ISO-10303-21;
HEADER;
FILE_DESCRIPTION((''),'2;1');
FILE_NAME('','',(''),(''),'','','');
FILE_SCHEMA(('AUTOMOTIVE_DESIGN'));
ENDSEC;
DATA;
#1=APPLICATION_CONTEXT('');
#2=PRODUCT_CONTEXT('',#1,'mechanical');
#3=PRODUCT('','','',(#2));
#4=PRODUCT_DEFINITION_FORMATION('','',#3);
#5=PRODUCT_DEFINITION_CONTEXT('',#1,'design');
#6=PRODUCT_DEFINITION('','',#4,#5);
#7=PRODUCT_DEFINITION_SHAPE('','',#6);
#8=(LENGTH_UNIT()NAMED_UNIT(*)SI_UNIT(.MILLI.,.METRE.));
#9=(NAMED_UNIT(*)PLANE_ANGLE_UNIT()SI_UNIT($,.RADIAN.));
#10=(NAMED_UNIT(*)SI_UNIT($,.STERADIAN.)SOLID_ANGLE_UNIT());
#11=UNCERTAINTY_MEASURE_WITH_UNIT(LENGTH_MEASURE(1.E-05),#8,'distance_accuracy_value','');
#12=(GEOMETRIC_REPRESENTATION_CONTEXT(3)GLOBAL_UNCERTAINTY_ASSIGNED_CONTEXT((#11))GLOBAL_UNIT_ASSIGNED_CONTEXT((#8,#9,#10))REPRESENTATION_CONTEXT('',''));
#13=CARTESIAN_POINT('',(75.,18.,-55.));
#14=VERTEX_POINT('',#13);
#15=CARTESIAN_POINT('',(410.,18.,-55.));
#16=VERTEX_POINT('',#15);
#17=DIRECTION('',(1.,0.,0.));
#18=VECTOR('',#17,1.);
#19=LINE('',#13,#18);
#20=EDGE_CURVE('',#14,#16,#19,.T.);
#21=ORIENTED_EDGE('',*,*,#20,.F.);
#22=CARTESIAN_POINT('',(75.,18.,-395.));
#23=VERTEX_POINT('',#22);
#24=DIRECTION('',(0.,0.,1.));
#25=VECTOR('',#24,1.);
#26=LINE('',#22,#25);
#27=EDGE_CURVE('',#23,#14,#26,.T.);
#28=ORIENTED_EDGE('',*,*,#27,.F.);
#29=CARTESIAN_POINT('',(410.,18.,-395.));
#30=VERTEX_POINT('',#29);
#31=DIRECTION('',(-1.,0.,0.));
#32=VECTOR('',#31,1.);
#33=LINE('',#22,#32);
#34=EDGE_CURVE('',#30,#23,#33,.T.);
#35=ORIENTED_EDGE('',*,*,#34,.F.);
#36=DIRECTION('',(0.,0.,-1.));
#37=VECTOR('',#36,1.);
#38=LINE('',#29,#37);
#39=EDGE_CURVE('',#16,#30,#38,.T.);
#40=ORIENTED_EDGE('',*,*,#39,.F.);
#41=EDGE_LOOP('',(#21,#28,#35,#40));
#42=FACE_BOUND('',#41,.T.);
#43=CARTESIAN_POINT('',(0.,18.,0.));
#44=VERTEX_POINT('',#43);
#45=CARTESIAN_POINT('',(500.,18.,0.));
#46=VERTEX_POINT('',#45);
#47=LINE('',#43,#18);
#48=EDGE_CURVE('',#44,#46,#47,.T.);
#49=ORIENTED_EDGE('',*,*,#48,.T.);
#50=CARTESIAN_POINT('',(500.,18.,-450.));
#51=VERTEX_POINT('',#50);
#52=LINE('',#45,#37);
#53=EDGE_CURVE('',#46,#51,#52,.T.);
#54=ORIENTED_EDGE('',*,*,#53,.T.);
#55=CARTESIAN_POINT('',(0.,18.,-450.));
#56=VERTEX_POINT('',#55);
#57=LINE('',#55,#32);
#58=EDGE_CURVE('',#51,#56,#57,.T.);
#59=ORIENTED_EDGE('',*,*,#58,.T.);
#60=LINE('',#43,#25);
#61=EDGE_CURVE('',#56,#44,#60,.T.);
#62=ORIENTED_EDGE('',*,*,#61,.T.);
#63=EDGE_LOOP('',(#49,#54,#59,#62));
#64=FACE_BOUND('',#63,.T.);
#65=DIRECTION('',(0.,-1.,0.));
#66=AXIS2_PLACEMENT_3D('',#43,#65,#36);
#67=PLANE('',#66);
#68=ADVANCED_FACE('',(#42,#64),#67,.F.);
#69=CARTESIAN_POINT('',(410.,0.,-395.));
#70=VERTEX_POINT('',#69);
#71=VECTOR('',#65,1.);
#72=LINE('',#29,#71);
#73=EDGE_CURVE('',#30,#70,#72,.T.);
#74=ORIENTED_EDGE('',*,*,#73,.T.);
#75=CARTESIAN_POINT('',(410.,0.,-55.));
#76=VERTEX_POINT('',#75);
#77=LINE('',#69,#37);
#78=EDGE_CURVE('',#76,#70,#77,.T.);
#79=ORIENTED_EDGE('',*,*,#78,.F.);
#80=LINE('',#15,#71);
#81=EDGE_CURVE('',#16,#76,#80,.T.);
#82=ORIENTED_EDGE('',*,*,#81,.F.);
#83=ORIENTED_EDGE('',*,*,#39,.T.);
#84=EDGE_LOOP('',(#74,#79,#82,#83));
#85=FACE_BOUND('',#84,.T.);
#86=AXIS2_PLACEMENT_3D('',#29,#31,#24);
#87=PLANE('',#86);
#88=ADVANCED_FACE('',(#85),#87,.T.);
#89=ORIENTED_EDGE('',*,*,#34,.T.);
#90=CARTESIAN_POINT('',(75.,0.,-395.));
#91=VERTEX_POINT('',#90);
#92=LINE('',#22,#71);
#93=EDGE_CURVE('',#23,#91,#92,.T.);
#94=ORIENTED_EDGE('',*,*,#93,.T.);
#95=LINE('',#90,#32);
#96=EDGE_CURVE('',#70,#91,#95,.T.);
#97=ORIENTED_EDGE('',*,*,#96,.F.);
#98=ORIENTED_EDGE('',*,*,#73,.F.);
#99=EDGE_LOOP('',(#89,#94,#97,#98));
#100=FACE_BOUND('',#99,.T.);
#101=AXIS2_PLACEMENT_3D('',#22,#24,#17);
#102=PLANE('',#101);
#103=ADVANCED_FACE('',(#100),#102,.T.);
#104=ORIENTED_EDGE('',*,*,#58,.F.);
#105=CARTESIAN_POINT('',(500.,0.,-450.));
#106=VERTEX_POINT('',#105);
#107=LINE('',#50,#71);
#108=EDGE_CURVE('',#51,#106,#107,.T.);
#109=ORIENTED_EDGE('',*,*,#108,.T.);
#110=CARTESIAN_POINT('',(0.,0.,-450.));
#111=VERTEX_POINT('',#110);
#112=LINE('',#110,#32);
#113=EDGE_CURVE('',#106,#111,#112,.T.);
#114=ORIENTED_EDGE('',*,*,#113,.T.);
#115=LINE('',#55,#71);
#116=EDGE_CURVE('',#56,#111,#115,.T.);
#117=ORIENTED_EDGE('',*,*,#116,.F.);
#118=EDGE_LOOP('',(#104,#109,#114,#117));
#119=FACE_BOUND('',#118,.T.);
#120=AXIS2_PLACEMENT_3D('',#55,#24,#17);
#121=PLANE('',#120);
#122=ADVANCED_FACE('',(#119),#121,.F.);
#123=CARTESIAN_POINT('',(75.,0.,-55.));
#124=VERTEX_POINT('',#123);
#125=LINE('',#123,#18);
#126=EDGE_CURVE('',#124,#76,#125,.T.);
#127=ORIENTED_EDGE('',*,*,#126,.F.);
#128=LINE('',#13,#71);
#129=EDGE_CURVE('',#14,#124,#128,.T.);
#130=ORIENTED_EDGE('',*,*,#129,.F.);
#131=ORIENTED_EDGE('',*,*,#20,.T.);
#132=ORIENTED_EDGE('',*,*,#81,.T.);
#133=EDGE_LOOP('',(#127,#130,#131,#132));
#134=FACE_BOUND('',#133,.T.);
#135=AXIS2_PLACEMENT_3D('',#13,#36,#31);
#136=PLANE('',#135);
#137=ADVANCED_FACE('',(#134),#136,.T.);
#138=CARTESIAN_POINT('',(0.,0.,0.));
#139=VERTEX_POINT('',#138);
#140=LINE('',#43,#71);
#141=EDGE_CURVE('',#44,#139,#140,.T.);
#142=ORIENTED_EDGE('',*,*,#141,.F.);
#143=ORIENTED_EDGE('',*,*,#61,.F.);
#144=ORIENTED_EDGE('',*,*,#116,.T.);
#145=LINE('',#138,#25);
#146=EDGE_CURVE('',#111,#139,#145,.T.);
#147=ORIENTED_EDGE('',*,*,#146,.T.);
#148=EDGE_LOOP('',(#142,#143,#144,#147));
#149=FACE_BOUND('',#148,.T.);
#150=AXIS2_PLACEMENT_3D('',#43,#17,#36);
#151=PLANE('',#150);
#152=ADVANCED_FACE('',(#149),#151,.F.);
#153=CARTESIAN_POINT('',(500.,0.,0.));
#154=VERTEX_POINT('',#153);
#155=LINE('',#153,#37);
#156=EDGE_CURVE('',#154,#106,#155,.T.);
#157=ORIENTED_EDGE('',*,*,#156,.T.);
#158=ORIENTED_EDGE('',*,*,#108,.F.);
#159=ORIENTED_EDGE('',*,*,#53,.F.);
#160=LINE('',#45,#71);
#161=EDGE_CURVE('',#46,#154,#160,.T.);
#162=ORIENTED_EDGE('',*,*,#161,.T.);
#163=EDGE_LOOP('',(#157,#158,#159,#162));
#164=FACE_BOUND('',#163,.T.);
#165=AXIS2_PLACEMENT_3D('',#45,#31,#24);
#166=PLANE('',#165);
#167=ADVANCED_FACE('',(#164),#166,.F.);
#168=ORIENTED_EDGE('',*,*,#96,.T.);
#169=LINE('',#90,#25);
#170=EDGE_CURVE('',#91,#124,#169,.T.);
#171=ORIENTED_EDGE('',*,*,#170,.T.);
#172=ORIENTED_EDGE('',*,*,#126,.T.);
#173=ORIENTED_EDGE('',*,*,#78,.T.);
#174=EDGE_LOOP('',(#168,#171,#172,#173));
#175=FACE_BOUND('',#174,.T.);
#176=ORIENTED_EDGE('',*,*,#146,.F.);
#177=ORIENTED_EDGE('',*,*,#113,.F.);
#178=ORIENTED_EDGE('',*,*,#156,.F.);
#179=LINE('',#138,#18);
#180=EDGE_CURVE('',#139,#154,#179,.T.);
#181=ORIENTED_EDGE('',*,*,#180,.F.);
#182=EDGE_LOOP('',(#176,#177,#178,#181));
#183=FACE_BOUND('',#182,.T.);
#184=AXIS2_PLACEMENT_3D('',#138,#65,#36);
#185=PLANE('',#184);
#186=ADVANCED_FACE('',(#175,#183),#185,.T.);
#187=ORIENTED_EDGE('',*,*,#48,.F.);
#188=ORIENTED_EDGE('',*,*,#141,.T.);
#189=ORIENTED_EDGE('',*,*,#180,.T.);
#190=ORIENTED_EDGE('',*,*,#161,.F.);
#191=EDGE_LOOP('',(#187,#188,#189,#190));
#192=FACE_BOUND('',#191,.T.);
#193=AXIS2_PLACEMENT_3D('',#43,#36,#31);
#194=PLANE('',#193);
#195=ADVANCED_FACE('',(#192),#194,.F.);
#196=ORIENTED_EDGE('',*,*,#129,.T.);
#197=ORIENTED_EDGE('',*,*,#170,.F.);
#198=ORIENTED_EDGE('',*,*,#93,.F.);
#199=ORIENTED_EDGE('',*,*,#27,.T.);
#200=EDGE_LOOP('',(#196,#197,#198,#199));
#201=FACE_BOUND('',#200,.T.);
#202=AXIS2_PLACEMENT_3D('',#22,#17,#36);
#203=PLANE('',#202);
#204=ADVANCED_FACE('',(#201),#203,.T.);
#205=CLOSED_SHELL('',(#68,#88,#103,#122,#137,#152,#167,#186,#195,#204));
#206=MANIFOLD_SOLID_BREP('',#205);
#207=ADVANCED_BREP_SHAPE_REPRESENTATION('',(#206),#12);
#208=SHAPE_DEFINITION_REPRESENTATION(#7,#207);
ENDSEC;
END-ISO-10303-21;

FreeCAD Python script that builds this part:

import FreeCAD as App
import Part
import Sketcher
from FreeCAD import Vector
Q = App.Units.Quantity


def add_polygon(sketch, points):
    """Adds a closed chain of lines whose ends are joined by coincident constraints."""
    first, n = sketch.GeometryCount, len(points)
    for a, b in zip(points, points[1:] + points[:1]):
        sketch.addGeometry(Part.LineSegment(App.Vector(*a, 0), App.Vector(*b, 0)), False)
    for i in range(n):
        sketch.addConstraint(Sketcher.Constraint("Coincident", first + i, 2, first + (i + 1) % n, 1))

doc = App.newDocument("Part")
body = doc.addObject("PartDesign::Body", "Body")

sketch1 = body.newObject("Sketcher::SketchObject", "Sketch")
sketch1.AttachmentSupport = (doc.getObject("XZ_Plane"), [""])
sketch1.MapMode = "FlatFace"
add_polygon(sketch1, [(0, -450), (0, 0), (500, 0), (500, -450)])
add_polygon(sketch1, [(410, -55), (75, -55), (75, -395), (410, -395)])
sketch1.addConstraint([
    Sketcher.Constraint("Vertical", 0),
    Sketcher.Constraint("Horizontal", 1),
    Sketcher.Constraint("Vertical", 2),
    Sketcher.Constraint("Horizontal", 3),
    Sketcher.Constraint("Horizontal", 4),
    Sketcher.Constraint("Vertical", 5),
    Sketcher.Constraint("Horizontal", 6),
    Sketcher.Constraint("Vertical", 7),
    Sketcher.Constraint("Coincident", 0, 2, -1, 1),
    Sketcher.Constraint("DistanceX", 1, 1, 1, 2, Q("500 mm")),
    Sketcher.Constraint("DistanceX", 4, 2, 4, 1, Q("335 mm")),
    Sketcher.Constraint("DistanceY", 0, 1, 0, 2, Q("450 mm")),
    Sketcher.Constraint("DistanceY", 5, 2, 5, 1, Q("340 mm")),
    Sketcher.Constraint("DistanceX", -1, 1, 4, 2, Q("75 mm")),
    Sketcher.Constraint("DistanceY", 4, 2, -1, 1, Q("55 mm")),
])
pad1 = body.newObject("PartDesign::Pad", "Pad")
pad1.Profile = sketch1
pad1.Length = 18
pad1.Reversed = True

doc.recompute()
